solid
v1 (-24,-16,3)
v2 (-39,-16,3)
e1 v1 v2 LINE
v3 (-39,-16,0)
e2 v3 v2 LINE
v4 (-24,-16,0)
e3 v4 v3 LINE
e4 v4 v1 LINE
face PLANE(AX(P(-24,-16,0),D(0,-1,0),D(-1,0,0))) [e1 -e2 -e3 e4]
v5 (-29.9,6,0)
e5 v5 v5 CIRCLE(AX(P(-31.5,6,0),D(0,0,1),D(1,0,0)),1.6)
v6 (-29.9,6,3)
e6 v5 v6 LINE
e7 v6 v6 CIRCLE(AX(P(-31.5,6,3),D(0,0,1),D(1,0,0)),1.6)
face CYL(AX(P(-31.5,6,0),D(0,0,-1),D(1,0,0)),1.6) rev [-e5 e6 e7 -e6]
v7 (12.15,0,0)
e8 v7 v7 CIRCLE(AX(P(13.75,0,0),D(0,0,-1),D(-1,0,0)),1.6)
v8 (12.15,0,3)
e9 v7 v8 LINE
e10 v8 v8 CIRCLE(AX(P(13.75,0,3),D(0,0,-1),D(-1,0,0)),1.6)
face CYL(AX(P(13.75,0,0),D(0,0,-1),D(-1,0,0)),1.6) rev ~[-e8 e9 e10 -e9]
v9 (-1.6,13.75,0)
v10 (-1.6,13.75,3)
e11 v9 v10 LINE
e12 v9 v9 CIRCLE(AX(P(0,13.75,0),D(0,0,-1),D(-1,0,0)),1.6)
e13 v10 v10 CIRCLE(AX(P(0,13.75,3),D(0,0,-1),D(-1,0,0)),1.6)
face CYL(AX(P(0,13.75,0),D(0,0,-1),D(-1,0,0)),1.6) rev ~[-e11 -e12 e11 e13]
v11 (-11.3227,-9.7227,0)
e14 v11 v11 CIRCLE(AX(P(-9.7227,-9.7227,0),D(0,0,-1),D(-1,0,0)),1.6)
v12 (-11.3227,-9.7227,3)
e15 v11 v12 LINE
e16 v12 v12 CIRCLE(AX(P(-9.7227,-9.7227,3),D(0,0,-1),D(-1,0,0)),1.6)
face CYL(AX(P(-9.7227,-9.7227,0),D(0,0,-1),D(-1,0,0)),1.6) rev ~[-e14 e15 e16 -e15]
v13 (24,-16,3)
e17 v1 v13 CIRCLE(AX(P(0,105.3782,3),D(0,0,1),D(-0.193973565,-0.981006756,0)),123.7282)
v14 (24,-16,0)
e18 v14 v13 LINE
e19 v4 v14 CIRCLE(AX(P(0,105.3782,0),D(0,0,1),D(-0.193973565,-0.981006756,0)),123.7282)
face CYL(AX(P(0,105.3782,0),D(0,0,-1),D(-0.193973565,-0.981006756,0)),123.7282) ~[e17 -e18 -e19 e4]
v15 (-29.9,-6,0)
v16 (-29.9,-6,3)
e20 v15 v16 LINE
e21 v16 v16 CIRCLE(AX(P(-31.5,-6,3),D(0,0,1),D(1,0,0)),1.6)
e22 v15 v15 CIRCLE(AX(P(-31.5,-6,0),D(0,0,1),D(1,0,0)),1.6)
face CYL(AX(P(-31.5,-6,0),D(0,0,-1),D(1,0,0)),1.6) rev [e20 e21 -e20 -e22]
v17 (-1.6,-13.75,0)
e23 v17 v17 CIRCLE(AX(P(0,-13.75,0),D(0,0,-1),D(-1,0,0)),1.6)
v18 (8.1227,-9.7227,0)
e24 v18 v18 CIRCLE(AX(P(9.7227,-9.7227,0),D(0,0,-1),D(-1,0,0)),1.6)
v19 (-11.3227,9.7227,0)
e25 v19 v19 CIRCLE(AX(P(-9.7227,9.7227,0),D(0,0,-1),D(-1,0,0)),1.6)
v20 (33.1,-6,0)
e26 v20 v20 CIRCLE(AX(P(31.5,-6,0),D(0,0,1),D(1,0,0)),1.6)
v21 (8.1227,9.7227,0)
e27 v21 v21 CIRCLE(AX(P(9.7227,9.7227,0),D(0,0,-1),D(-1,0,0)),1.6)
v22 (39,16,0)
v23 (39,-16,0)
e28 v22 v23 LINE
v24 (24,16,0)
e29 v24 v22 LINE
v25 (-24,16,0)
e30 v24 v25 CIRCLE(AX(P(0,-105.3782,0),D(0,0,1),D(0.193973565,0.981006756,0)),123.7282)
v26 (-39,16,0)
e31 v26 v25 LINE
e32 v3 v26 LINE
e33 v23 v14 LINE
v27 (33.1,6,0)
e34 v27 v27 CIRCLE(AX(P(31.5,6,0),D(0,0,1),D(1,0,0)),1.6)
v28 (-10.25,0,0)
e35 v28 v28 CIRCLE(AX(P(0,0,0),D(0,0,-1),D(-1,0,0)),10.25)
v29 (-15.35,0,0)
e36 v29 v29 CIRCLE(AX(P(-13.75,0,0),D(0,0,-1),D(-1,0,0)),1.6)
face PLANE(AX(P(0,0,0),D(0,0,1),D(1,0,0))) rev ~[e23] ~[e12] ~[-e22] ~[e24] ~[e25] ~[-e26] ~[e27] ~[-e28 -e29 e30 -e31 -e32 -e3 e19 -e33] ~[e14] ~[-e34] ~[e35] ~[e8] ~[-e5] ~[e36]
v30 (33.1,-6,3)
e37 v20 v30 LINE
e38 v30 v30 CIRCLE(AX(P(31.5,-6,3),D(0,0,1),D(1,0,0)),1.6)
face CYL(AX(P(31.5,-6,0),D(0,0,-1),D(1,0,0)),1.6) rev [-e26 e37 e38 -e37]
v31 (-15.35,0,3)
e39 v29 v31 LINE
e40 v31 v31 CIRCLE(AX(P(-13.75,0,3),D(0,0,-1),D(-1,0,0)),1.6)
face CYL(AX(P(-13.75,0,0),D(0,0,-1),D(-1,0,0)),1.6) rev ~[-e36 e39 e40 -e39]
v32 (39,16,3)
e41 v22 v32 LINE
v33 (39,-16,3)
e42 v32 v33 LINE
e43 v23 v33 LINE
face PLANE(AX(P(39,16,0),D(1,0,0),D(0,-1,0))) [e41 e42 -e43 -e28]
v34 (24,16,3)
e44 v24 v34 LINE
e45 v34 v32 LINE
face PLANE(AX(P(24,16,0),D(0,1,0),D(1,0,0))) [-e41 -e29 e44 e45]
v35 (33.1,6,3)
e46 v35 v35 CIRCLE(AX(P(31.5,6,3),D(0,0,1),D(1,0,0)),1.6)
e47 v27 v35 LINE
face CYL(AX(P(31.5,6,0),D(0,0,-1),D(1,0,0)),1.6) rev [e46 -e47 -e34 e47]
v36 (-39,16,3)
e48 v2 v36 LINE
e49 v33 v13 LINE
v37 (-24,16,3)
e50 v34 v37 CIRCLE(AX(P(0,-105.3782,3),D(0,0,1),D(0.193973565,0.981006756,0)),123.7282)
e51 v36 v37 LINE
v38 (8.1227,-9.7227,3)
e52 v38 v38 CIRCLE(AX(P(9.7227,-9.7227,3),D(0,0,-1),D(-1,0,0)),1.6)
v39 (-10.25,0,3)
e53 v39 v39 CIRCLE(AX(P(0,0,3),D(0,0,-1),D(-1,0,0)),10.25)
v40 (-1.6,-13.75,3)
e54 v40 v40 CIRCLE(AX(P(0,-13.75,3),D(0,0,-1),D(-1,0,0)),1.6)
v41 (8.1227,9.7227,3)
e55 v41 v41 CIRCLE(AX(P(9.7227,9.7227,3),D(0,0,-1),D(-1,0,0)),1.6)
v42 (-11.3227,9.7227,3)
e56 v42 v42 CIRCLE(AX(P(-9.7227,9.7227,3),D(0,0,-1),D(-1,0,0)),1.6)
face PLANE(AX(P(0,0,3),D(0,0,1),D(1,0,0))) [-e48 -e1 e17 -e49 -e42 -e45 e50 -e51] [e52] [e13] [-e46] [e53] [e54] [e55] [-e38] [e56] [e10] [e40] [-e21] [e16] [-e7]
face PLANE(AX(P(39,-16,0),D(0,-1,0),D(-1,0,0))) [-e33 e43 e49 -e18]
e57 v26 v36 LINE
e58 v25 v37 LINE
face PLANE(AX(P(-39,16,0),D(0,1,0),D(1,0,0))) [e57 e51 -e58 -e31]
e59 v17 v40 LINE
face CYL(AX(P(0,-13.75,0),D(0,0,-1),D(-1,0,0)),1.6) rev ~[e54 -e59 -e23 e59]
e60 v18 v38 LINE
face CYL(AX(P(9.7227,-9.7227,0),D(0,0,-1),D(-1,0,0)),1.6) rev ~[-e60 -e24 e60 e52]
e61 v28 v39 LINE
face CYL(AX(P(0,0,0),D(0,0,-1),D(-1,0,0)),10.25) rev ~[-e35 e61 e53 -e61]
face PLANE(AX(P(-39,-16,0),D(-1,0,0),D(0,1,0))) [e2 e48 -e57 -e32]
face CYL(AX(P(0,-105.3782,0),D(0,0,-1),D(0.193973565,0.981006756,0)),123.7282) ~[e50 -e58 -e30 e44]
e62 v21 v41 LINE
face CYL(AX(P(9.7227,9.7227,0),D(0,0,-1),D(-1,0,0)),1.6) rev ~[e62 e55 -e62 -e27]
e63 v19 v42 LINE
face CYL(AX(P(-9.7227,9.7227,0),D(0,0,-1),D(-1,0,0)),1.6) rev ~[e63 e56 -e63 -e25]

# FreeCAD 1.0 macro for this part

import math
import FreeCAD as App
import Part
import Sketcher

doc = App.newDocument("Part")
body = doc.addObject("PartDesign::Body", "Body")

# Sketch on XY plane
sketch1 = body.newObject("Sketcher::SketchObject", "Sketch")
sketch1.AttachmentSupport = (doc.getObject("XY_Plane"), [""])
sketch1.MapMode = "FlatFace"
sketch1.addGeometry(Part.LineSegment(App.Vector(-39, 16, 0), App.Vector(-39, -16, 0)), False)
sketch1.addGeometry(Part.LineSegment(App.Vector(-39, -16, 0), App.Vector(-24, -16, 0)), False)
sketch1.addGeometry(Part.ArcOfCircle(Part.Circle(App.Vector(0, 105.4, 0), App.Vector(0, 0, 1), 123.7), math.radians(-101), math.radians(-79)), False)
sketch1.addGeometry(Part.LineSegment(App.Vector(24, -16, 0), App.Vector(39, -16, 0)), False)
sketch1.addGeometry(Part.LineSegment(App.Vector(39, -16, 0), App.Vector(39, 16, 0)), False)
sketch1.addGeometry(Part.LineSegment(App.Vector(39, 16, 0), App.Vector(24, 16, 0)), False)
sketch1.addGeometry(Part.ArcOfCircle(Part.Circle(App.Vector(0, -105.4, 0), App.Vector(0, 0, 1), 123.7), math.radians(79), math.radians(101)), False)
sketch1.addGeometry(Part.LineSegment(App.Vector(-24, 16, 0), App.Vector(-39, 16, 0)), False)
sketch1.addGeometry(Part.Circle(App.Vector(-31.5, -6, 0), App.Vector(0, 0, 1), 1.6), False)
sketch1.addGeometry(Part.Circle(App.Vector(31.5, -6, 0), App.Vector(0, 0, 1), 1.6), False)
sketch1.addGeometry(Part.Circle(App.Vector(-31.5, 6, 0), App.Vector(0, 0, 1), 1.6), False)
sketch1.addGeometry(Part.Circle(App.Vector(31.5, 6, 0), App.Vector(0, 0, 1), 1.6), False)
sketch1.addConstraint(Sketcher.Constraint("Coincident", 0, 2, 1, 1))
sketch1.addConstraint(Sketcher.Constraint("Coincident", 1, 2, 2, 1))
sketch1.addConstraint(Sketcher.Constraint("Coincident", 2, 2, 3, 1))
sketch1.addConstraint(Sketcher.Constraint("Coincident", 3, 2, 4, 1))
sketch1.addConstraint(Sketcher.Constraint("Coincident", 4, 2, 5, 1))
sketch1.addConstraint(Sketcher.Constraint("Coincident", 5, 2, 6, 1))
sketch1.addConstraint(Sketcher.Constraint("Coincident", 6, 2, 7, 1))
sketch1.addConstraint(Sketcher.Constraint("Coincident", 7, 2, 0, 1))
sketch1.addConstraint(Sketcher.Constraint("Vertical", 0))
sketch1.addConstraint(Sketcher.Constraint("Horizontal", 1))
sketch1.addConstraint(Sketcher.Constraint("Horizontal", 3))
sketch1.addConstraint(Sketcher.Constraint("Vertical", 4))
sketch1.addConstraint(Sketcher.Constraint("Horizontal", 5))
sketch1.addConstraint(Sketcher.Constraint("Horizontal", 7))
sketch1.addConstraint(Sketcher.Constraint("Equal", 2, 6))
sketch1.addConstraint(Sketcher.Constraint("Equal", 8, 9))
sketch1.addConstraint(Sketcher.Constraint("Equal", 9, 10))
sketch1.addConstraint(Sketcher.Constraint("Equal", 10, 11))
sketch1.addConstraint(Sketcher.Constraint("Symmetric", 2, 3, 6, 3, -1, 1))
sketch1.addConstraint(Sketcher.Constraint("Symmetric", 9, 3, 10, 3, -1, 1))
sketch1.addConstraint(Sketcher.Constraint("Symmetric", 8, 3, 11, 3, -1, 1))
sketch1.addConstraint(Sketcher.Constraint("Symmetric", 0, 2, 4, 2, -1, 1))
sketch1.addConstraint(Sketcher.Constraint("Symmetric", 8, 3, 9, 3, -2))
sketch1.addConstraint(Sketcher.Constraint("Symmetric", 1, 2, 2, 2, -2))
sketch1.addConstraint(Sketcher.Constraint("Horizontal", 5, 2, 6, 2))
sketch1.addConstraint(Sketcher.Constraint("Diameter", 8, 3.2))
sketch1.addConstraint(Sketcher.Constraint("DistanceX", 1, 1, 1, 2, 15.0))
sketch1.addConstraint(Sketcher.Constraint("DistanceY", 0, 2, 0, 1, 32.0))
sketch1.addConstraint(Sketcher.Constraint("DistanceY", 8, 3, -1, 1, 6.0))
sketch1.addConstraint(Sketcher.Constraint("DistanceX", 0, 2, -1, 1, 39.0))
sketch1.addConstraint(Sketcher.Constraint("DistanceX", 8, 3, 9, 3, 63.0))
sketch1.addConstraint(Sketcher.Constraint("Radius", 2, 123.7282))
pad1 = body.newObject("PartDesign::Pad", "Pad")
pad1.Profile = sketch1
pad1.Length = 3

# Sketch on XY plane
sketch2 = body.newObject("Sketcher::SketchObject", "Sketch001")
sketch2.AttachmentSupport = (doc.getObject("XY_Plane"), [""])
sketch2.MapMode = "FlatFace"
sketch2.addGeometry(Part.Circle(App.Vector(0, 0, 0), App.Vector(0, 0, 1), 10.2), False)
sketch2.addGeometry(Part.Circle(App.Vector(0, 13.8, 0), App.Vector(0, 0, 1), 1.6), False)
sketch2.addGeometry(Part.Circle(App.Vector(9.7, 9.7, 0), App.Vector(0, 0, 1), 1.6), False)
sketch2.addGeometry(Part.Circle(App.Vector(13.8, 0, 0), App.Vector(0, 0, 1), 1.6), False)
sketch2.addGeometry(Part.Circle(App.Vector(9.7, -9.7, 0), App.Vector(0, 0, 1), 1.6), False)
sketch2.addGeometry(Part.Circle(App.Vector(0, -13.8, 0), App.Vector(0, 0, 1), 1.6), False)
sketch2.addGeometry(Part.Circle(App.Vector(-9.7, -9.7, 0), App.Vector(0, 0, 1), 1.6), False)
sketch2.addGeometry(Part.Circle(App.Vector(-13.8, 0, 0), App.Vector(0, 0, 1), 1.6), False)
sketch2.addGeometry(Part.Circle(App.Vector(-9.7, 9.7, 0), App.Vector(0, 0, 1), 1.6), False)
sketch2.addConstraint(Sketcher.Constraint("Coincident", 0, 3, -1, 1))
sketch2.addConstraint(Sketcher.Constraint("Equal", 1, 2))
sketch2.addConstraint(Sketcher.Constraint("Equal", 2, 3))
sketch2.addConstraint(Sketcher.Constraint("Equal", 3, 4))
sketch2.addConstraint(Sketcher.Constraint("Equal", 4, 5))
sketch2.addConstraint(Sketcher.Constraint("Equal", 5, 6))
sketch2.addConstraint(Sketcher.Constraint("Equal", 6, 7))
sketch2.addConstraint(Sketcher.Constraint("Equal", 7, 8))
sketch2.addConstraint(Sketcher.Constraint("Symmetric", 1, 3, 5, 3, -1, 1))
sketch2.addConstraint(Sketcher.Constraint("Symmetric", 2, 3, 6, 3, -1, 1))
sketch2.addConstraint(Sketcher.Constraint("Symmetric", 3, 3, 7, 3, -1, 1))
sketch2.addConstraint(Sketcher.Constraint("Symmetric", 4, 3, 8, 3, -1, 1))
sketch2.addConstraint(Sketcher.Constraint("Symmetric", 4, 3, 6, 3, -2))
sketch2.addConstraint(Sketcher.Constraint("PointOnObject", 1, 3, -2))
sketch2.addConstraint(Sketcher.Constraint("PointOnObject", 3, 3, -1))
sketch2.addConstraint(Sketcher.Constraint("Diameter", 0, 20.5))
sketch2.addConstraint(Sketcher.Constraint("Diameter", 1, 3.2))
sketch2.addConstraint(Sketcher.Constraint("DistanceY", 5, 3, 1, 3, 27.5))
sketch2.addConstraint(Sketcher.Constraint("DistanceX", -1, 1, 3, 3, 13.75))
sketch2.addConstraint(Sketcher.Constraint("DistanceX", -1, 1, 2, 3, 9.7227))
sketch2.addConstraint(Sketcher.Constraint("DistanceY", -1, 1, 2, 3, 9.7227))
pocket1 = body.newObject("PartDesign::Pocket", "Pocket")
pocket1.Profile = sketch2
pocket1.Type = "ThroughAll"
pocket1.Reversed = True

doc.recompute()
